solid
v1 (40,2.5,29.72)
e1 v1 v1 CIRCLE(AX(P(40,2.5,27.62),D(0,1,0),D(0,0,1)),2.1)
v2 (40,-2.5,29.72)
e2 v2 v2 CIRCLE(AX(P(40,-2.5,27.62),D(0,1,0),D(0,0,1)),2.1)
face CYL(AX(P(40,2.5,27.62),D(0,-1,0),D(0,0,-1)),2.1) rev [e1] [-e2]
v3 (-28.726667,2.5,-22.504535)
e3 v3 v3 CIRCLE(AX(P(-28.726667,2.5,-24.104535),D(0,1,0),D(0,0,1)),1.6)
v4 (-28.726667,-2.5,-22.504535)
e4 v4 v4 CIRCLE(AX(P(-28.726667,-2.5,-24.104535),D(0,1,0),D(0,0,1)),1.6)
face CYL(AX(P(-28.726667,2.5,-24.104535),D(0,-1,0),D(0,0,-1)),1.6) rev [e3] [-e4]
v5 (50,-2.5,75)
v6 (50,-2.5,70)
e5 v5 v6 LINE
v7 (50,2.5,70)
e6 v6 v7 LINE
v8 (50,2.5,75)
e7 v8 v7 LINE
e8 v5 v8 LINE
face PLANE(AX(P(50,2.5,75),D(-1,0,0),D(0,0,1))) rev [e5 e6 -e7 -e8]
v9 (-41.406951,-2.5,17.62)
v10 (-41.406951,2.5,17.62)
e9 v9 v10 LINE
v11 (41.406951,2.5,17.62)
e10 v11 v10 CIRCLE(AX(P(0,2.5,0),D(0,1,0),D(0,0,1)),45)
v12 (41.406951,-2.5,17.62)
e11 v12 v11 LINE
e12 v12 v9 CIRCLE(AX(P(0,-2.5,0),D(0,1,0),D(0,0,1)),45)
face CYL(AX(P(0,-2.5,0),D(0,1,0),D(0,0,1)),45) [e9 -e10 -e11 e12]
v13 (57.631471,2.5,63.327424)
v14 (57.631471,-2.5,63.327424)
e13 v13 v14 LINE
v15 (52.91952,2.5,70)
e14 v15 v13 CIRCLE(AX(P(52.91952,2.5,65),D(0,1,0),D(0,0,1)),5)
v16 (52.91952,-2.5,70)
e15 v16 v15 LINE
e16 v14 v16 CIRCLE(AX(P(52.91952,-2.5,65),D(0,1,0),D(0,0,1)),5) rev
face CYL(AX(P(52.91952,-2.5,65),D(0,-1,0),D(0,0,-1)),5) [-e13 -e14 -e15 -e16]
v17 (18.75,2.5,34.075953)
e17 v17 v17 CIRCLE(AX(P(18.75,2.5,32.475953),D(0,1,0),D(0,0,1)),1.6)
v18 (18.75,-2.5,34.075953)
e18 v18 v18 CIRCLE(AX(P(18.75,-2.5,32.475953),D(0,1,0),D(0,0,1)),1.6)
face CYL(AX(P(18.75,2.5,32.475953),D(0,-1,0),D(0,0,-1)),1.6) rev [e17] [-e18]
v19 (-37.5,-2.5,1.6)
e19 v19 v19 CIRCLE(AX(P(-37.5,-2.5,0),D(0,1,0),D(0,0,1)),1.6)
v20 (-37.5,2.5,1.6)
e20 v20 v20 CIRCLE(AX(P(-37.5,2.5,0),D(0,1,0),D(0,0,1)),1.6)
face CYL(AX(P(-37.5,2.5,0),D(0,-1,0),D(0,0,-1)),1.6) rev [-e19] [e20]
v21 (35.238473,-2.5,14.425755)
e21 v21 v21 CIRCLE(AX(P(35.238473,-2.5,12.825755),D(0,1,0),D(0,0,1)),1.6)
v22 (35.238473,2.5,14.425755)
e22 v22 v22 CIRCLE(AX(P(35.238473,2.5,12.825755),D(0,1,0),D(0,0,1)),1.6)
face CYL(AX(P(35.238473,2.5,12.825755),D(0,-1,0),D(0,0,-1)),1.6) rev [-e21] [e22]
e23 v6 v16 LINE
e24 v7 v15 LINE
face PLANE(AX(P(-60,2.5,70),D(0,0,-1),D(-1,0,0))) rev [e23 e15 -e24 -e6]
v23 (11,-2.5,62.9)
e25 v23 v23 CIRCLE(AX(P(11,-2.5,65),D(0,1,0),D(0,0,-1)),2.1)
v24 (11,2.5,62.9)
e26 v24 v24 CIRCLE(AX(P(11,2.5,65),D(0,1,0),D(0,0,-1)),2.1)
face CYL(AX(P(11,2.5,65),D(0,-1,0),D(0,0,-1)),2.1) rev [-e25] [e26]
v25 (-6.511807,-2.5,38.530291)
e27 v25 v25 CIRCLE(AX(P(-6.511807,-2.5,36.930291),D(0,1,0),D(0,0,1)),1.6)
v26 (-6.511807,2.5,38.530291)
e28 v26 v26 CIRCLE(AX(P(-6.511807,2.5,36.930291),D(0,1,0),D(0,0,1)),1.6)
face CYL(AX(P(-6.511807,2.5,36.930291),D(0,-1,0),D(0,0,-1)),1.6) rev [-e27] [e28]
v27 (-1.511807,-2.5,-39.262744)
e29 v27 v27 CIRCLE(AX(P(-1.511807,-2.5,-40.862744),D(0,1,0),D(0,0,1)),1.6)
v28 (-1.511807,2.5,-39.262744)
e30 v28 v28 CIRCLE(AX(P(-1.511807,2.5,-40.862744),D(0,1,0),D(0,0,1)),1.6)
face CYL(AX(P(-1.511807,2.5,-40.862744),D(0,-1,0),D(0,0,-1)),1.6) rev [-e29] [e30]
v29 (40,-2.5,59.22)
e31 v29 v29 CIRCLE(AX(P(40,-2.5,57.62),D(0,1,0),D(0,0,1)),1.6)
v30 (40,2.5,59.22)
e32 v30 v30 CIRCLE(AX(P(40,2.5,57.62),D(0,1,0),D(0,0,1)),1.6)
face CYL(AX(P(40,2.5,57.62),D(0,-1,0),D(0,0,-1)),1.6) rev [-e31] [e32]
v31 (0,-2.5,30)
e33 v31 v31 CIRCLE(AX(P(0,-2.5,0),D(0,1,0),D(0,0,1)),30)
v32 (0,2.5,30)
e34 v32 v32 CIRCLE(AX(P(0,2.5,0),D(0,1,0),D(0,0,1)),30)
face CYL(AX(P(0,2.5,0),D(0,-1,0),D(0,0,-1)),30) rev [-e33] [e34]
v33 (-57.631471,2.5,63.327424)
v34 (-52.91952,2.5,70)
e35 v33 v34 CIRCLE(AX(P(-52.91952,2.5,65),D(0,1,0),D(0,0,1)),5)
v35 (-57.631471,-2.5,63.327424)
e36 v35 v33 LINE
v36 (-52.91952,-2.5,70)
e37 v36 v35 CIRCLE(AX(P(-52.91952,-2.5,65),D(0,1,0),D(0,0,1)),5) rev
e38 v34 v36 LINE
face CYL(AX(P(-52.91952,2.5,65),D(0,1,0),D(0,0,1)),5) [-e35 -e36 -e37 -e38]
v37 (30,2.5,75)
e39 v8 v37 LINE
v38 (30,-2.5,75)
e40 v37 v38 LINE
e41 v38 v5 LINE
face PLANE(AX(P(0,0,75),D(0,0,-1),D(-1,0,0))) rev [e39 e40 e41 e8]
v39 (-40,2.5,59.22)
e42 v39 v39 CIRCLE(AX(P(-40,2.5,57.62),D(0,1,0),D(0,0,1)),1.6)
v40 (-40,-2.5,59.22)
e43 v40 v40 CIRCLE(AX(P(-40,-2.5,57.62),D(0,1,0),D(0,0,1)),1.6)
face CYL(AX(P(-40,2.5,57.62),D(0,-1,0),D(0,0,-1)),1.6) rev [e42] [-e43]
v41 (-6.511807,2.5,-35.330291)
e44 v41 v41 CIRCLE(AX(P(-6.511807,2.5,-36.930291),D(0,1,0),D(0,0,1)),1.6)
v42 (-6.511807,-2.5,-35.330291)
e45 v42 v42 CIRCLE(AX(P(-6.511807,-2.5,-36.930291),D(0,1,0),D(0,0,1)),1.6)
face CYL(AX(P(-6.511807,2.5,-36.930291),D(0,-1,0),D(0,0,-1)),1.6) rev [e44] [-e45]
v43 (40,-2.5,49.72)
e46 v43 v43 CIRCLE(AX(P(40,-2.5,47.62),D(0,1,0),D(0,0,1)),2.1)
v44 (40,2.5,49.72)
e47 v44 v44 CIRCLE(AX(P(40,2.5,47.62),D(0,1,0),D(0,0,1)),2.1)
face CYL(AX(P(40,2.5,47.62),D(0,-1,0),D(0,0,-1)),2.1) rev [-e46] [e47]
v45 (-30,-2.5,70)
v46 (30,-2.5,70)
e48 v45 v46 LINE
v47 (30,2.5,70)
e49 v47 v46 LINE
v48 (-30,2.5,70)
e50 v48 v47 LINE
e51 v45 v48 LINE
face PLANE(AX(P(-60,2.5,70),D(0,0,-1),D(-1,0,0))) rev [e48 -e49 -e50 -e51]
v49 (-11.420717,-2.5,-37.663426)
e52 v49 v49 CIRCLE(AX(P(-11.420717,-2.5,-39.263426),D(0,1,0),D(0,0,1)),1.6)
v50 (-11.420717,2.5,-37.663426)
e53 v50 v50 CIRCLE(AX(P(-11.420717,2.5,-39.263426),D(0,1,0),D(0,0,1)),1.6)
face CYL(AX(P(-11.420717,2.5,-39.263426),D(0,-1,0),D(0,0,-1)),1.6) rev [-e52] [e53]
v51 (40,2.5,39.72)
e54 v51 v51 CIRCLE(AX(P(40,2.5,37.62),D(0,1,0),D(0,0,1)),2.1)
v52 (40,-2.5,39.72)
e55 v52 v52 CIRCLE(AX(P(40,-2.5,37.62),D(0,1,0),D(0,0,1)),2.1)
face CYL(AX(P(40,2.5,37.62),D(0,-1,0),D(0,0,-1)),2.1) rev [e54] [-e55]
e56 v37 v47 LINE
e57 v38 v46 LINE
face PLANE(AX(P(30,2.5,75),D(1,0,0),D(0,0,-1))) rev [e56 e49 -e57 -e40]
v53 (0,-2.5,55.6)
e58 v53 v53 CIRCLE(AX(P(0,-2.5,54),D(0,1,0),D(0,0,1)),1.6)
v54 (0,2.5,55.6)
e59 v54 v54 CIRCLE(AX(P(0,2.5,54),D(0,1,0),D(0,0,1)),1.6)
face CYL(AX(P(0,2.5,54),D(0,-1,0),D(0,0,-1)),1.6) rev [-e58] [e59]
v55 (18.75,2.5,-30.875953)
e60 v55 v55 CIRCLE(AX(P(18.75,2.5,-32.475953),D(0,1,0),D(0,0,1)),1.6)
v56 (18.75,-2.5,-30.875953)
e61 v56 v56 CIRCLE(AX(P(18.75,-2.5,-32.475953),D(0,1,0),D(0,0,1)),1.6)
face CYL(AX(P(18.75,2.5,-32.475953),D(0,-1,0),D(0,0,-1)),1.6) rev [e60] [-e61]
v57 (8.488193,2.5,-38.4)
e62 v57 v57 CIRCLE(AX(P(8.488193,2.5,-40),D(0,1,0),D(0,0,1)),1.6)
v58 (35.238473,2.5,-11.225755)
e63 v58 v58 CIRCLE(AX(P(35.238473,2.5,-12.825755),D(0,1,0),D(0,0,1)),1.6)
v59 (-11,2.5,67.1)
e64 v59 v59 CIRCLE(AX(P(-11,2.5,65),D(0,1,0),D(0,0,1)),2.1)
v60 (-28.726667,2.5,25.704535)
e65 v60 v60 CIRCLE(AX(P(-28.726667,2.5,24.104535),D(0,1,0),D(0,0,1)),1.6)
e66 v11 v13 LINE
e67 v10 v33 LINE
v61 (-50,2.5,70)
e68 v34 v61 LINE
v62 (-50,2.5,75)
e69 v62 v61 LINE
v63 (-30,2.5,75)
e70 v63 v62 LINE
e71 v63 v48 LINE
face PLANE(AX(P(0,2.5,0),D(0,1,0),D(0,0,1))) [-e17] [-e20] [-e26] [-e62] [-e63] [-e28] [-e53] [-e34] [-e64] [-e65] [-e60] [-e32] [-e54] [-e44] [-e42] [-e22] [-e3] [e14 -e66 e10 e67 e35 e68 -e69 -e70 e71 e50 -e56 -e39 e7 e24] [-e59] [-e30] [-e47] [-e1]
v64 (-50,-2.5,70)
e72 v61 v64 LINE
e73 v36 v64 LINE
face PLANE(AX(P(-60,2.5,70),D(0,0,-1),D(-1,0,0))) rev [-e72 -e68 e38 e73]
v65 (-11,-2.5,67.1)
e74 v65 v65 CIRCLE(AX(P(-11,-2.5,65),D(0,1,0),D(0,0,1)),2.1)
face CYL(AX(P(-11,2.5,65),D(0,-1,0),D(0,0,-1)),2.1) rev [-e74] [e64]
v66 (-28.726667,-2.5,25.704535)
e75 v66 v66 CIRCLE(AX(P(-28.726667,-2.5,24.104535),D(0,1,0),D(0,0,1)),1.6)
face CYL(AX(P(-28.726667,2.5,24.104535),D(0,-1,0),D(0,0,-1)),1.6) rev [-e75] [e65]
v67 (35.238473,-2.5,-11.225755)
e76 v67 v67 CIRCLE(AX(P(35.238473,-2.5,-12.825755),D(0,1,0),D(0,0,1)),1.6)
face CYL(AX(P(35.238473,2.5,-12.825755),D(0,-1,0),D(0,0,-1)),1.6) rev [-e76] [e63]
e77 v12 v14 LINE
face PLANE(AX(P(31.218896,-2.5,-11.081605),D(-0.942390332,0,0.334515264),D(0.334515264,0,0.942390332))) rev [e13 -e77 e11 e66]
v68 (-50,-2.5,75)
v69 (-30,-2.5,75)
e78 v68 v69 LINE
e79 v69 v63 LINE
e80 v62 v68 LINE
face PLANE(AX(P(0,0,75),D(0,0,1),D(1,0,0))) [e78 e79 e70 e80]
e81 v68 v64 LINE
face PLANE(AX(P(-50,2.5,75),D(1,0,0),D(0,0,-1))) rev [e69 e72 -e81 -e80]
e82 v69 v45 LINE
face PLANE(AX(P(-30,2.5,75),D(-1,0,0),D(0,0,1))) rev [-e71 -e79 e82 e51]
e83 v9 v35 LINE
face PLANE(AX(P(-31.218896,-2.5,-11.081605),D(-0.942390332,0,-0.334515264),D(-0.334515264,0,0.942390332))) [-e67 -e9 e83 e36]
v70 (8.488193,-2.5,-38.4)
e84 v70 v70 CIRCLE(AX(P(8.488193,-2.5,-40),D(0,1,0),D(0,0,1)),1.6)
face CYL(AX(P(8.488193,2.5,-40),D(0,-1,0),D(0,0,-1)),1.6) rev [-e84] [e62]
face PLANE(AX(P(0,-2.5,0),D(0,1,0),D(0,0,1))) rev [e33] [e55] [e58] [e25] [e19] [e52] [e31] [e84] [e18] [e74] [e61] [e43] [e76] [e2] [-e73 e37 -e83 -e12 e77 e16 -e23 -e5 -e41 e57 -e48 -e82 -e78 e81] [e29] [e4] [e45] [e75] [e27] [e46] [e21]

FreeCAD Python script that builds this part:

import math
import FreeCAD as App
import Part
import Sketcher


def edges_at(feature, points):
    """Names of the edges that pass closest to the given points."""
    edges = feature.Shape.Edges
    near = lambda p: min(range(len(edges)), key=lambda i: edges[i].distToShape(Part.Vertex(*p))[0])
    return sorted({f"Edge{near(p) + 1}" for p in points})


def add_polygon(sketch, points):
    """Adds a closed chain of lines whose ends are joined by coincident constraints."""
    first, n = sketch.GeometryCount, len(points)
    for a, b in zip(points, points[1:] + points[:1]):
        sketch.addGeometry(Part.LineSegment(App.Vector(*a, 0), App.Vector(*b, 0)), False)
    for i in range(n):
        sketch.addConstraint(Sketcher.Constraint("Coincident", first + i, 2, first + (i + 1) % n, 1))

doc = App.newDocument("Part")
params = doc.addObject("Spreadsheet::Sheet", "Params")
for row, (alias, value) in enumerate([
    ("sketch1_diameter", "60 mm"),
    ("sketch1_radius", "60 mm"),
    ("sketch1_diameter2", "3.2 mm"),
    ("sketch1_diameter3", "4.2 mm"),
    ("sketch1_height", "70 mm"),
    ("pad1_length", "5 mm"),
    ("sketch2_width", "20 mm"),
    ("sketch2_height", "5 mm"),
    ("pad2_length", "5 mm"),
    ("sketch3_radius", "45 mm"),
    ("sketch3_radius2", "60 mm"),
    ("sketch3_height", "70 mm"),
    ("fillet_radius", "5 mm"),
], start=1):
    params.set(f"A{row}", alias)
    params.set(f"B{row}", "=" + value)
    params.setAlias(f"B{row}", alias)

body = doc.addObject("PartDesign::Body", "Body")

sketch1 = body.newObject("Sketcher::SketchObject", "Sketch")
sketch1.AttachmentSupport = (doc.getObject("XZ_Plane"), [""])
sketch1.MapMode = "FlatFace"
sketch1.addGeometry([
    Part.LineSegment(App.Vector(-60, 0, 0), App.Vector(-60, 70, 0)),
    Part.LineSegment(App.Vector(-60, 70, 0), App.Vector(60, 70, 0)),
    Part.LineSegment(App.Vector(60, 70, 0), App.Vector(60, 0, 0)),
    Part.ArcOfCircle(Part.Circle(App.Vector(0, 0, 0), App.Vector(0, 0, 1), 60), math.radians(-90), math.radians(0)),
    Part.ArcOfCircle(Part.Circle(App.Vector(0, 0, 0), App.Vector(0, 0, 1), 60), math.radians(-180), math.radians(-90)),
    Part.Circle(App.Vector(-40, 57.6, 0), App.Vector(0, 0, 1), 1.6),
    Part.Circle(App.Vector(-11, 65, 0), App.Vector(0, 0, 1), 2.1),
    Part.Circle(App.Vector(0, 54, 0), App.Vector(0, 0, 1), 1.6),
    Part.Circle(App.Vector(-28.7, 24.1, 0), App.Vector(0, 0, 1), 1.6),
    Part.Circle(App.Vector(-6.5, 36.9, 0), App.Vector(0, 0, 1), 1.6),
    Part.Circle(App.Vector(11, 65, 0), App.Vector(0, 0, 1), 2.1),
    Part.Circle(App.Vector(40, 57.6, 0), App.Vector(0, 0, 1), 1.6),
    Part.Circle(App.Vector(40, 47.6, 0), App.Vector(0, 0, 1), 2.1),
    Part.Circle(App.Vector(18.8, 32.5, 0), App.Vector(0, 0, 1), 1.6),
    Part.Circle(App.Vector(40, 37.6, 0), App.Vector(0, 0, 1), 2.1),
    Part.Circle(App.Vector(40, 27.6, 0), App.Vector(0, 0, 1), 2.1),
    Part.Circle(App.Vector(35.2, 12.8, 0), App.Vector(0, 0, 1), 1.6),
    Part.Circle(App.Vector(-37.5, 0, 0), App.Vector(0, 0, 1), 1.6),
    Part.Circle(App.Vector(0, 0, 0), App.Vector(0, 0, 1), 30),
    Part.Circle(App.Vector(-28.7, -24.1, 0), App.Vector(0, 0, 1), 1.6),
    Part.Circle(App.Vector(-11.4, -39.3, 0), App.Vector(0, 0, 1), 1.6),
    Part.Circle(App.Vector(-6.5, -36.9, 0), App.Vector(0, 0, 1), 1.6),
    Part.Circle(App.Vector(-1.5, -40.9, 0), App.Vector(0, 0, 1), 1.6),
    Part.Circle(App.Vector(35.2, -12.8, 0), App.Vector(0, 0, 1), 1.6),
    Part.Circle(App.Vector(8.5, -40, 0), App.Vector(0, 0, 1), 1.6),
    Part.Circle(App.Vector(18.8, -32.5, 0), App.Vector(0, 0, 1), 1.6),
], False)
sketch1.addConstraint([
    Sketcher.Constraint("Coincident", 0, 2, 1, 1),
    Sketcher.Constraint("Coincident", 1, 2, 2, 1),
    Sketcher.Constraint("Tangent", 2, 2, 3, 2),
    Sketcher.Constraint("Tangent", 3, 1, 4, 2),
    Sketcher.Constraint("Tangent", 4, 1, 0, 1),
    Sketcher.Constraint("Vertical", 0),
    Sketcher.Constraint("Horizontal", 1),
    Sketcher.Constraint("Vertical", 2),
    Sketcher.Constraint("Coincident", 3, 3, -1, 1),
    Sketcher.Constraint("Coincident", 18, 3, -1, 1),
    Sketcher.Constraint("Equal", 3, 4),
    Sketcher.Constraint("Equal", 5, 7),
    Sketcher.Constraint("Equal", 7, 8),
    Sketcher.Constraint("Equal", 8, 9),
    Sketcher.Constraint("Equal", 6, 10),
    Sketcher.Constraint("Equal", 9, 11),
    Sketcher.Constraint("Equal", 10, 12),
    Sketcher.Constraint("Equal", 11, 13),
    Sketcher.Constraint("Equal", 12, 14),
    Sketcher.Constraint("Equal", 14, 15),
    Sketcher.Constraint("Equal", 13, 16),
    Sketcher.Constraint("Equal", 16, 17),
    Sketcher.Constraint("Equal", 17, 19),
    Sketcher.Constraint("Equal", 19, 20),
    Sketcher.Constraint("Equal", 20, 21),
    Sketcher.Constraint("Equal", 21, 22),
    Sketcher.Constraint("Equal", 22, 23),
    Sketcher.Constraint("Equal", 23, 24),
    Sketcher.Constraint("Equal", 24, 25),
    Sketcher.Constraint("Symmetric", 6, 3, 10, 3, -2),
    Sketcher.Constraint("Symmetric", 5, 3, 11, 3, -2),
    Sketcher.Constraint("Symmetric", 8, 3, 19, 3, -1),
    Sketcher.Constraint("Symmetric", 9, 3, 21, 3, -1),
    Sketcher.Constraint("Symmetric", 16, 3, 23, 3, -1),
    Sketcher.Constraint("Symmetric", 13, 3, 25, 3, -1),
    Sketcher.Constraint("PointOnObject", 7, 3, -2),
    Sketcher.Constraint("PointOnObject", 17, 3, -1),
    Sketcher.Constraint("PointOnObject", 3, 1, -2),
    Sketcher.Constraint("Vertical", 11, 3, 12, 3),
    Sketcher.Constraint("Vertical", 12, 3, 14, 3),
    Sketcher.Constraint("Vertical", 14, 3, 15, 3),
    Sketcher.Constraint("Diameter", 18, 60.0),
    Sketcher.Constraint("Radius", 3, 60.0),
    Sketcher.Constraint("Diameter", 5, 3.2),
    Sketcher.Constraint("Diameter", 6, 4.2),
    Sketcher.Constraint("DistanceY", 0, 1, 0, 2, 70.0),
    Sketcher.Constraint("DistanceX", 5, 3, -1, 1, 40.0),
    Sketcher.Constraint("DistanceX", 6, 3, -1, 1, 11.0),
    Sketcher.Constraint("DistanceY", -1, 1, 6, 3, 65.0),
    Sketcher.Constraint("DistanceY", -1, 1, 7, 3, 54.0),
    Sketcher.Constraint("DistanceY", 24, 3, -1, 1, 40.0),
    Sketcher.Constraint("DistanceY", 12, 3, 11, 3, 10.0),
    Sketcher.Constraint("DistanceY", 14, 3, 12, 3, 10.0),
    Sketcher.Constraint("DistanceY", 15, 3, 14, 3, 10.0),
    Sketcher.Constraint("DistanceX", 21, 3, 22, 3, 5.0),
    Sketcher.Constraint("DistanceX", 22, 3, 24, 3, 10.0),
    Sketcher.Constraint("DistanceX", 17, 3, -1, 1, 37.5),
    Sketcher.Constraint("DistanceY", -1, 1, 5, 3, 57.62),
    Sketcher.Constraint("DistanceX", -1, 1, 13, 3, 18.75),
    Sketcher.Constraint("DistanceY", -1, 1, 9, 3, 36.930291),
    Sketcher.Constraint("DistanceX", 8, 3, 9, 3, 22.21486),
    Sketcher.Constraint("DistanceY", 13, 3, 9, 3, 4.454338),
    Sketcher.Constraint("DistanceY", 19, 3, 8, 3, 48.209071),
    Sketcher.Constraint("DistanceX", 19, 3, 20, 3, 17.305949),
    Sketcher.Constraint("DistanceY", 20, 3, 19, 3, 15.158891),
    Sketcher.Constraint("DistanceY", 22, 3, 19, 3, 16.758209),
    Sketcher.Constraint("DistanceY", 23, 3, 16, 3, 25.651511),
    Sketcher.Constraint("DistanceX", 24, 3, 23, 3, 26.75028),
    Sketcher.Constraint("DistanceX", 8, 3, -1, 1, 28.726667),
])
sketch1.setExpression("Constraints[41]", "Params.sketch1_diameter")
sketch1.setExpression("Constraints[42]", "Params.sketch1_radius")
sketch1.setExpression("Constraints[43]", "Params.sketch1_diameter2")
sketch1.setExpression("Constraints[44]", "Params.sketch1_diameter3")
sketch1.setExpression("Constraints[45]", "Params.sketch1_height")
pad1 = body.newObject("PartDesign::Pad", "Pad")
pad1.Profile = sketch1
pad1.setExpression("Length", "Params.pad1_length")
pad1.Midplane = True

sketch2 = body.newObject("Sketcher::SketchObject", "Sketch001")
sketch2.AttachmentSupport = (doc.getObject("XY_Plane"), [""])
sketch2.MapMode = "FlatFace"
sketch2.AttachmentOffset = App.Placement(App.Vector(0, 0, 70), App.Rotation())
add_polygon(sketch2, [(30, 2), (30, -2), (50, -2), (50, 2)])
add_polygon(sketch2, [(-50, 2), (-50, -2), (-30, -2), (-30, 2)])
sketch2.addConstraint([
    Sketcher.Constraint("Vertical", 0),
    Sketcher.Constraint("Horizontal", 1),
    Sketcher.Constraint("Vertical", 2),
    Sketcher.Constraint("Horizontal", 3),
    Sketcher.Constraint("Vertical", 4),
    Sketcher.Constraint("Horizontal", 5),
    Sketcher.Constraint("Vertical", 6),
    Sketcher.Constraint("Horizontal", 7),
    Sketcher.Constraint("Symmetric", 2, 2, 4, 2, -1, 1),
    Sketcher.Constraint("Symmetric", 0, 2, 6, 2, -1, 1),
    Sketcher.Constraint("Horizontal", 1, 2, 4, 2),
    Sketcher.Constraint("DistanceX", 1, 1, 1, 2, 20.0),
    Sketcher.Constraint("DistanceY", 0, 2, 0, 1, 5.0),
    Sketcher.Constraint("DistanceX", -1, 1, 0, 2, 30.0),
])
sketch2.setExpression("Constraints[19]", "Params.sketch2_width")
sketch2.setExpression("Constraints[20]", "Params.sketch2_height")
pad2 = body.newObject("PartDesign::Pad", "Pad001")
pad2.Profile = sketch2
pad2.setExpression("Length", "Params.pad2_length")

sketch3 = body.newObject("Sketcher::SketchObject", "Sketch002")
sketch3.AttachmentSupport = (doc.getObject("XZ_Plane"), [""])
sketch3.MapMode = "FlatFace"
sketch3.AttachmentOffset = App.Placement(App.Vector(0, 0, -2.5), App.Rotation())
sketch3.addGeometry([
    Part.ArcOfCircle(Part.Circle(App.Vector(0, 0, 0), App.Vector(0, 0, 1), 45), math.radians(157), math.radians(383)),
    Part.LineSegment(App.Vector(41, 18, 0), App.Vector(60, 70, 0)),
    Part.LineSegment(App.Vector(60, 70, 0), App.Vector(60, 0, 0)),
    Part.ArcOfCircle(Part.Circle(App.Vector(0, 0, 0), App.Vector(0, 0, 1), 60), math.radians(180), math.radians(360)),
    Part.LineSegment(App.Vector(-60, 0, 0), App.Vector(-60, 70, 0)),
    Part.LineSegment(App.Vector(-60, 70, 0), App.Vector(-41, 18, 0)),
], False)
sketch3.addConstraint([
    Sketcher.Constraint("Coincident", 0, 2, 1, 1),
    Sketcher.Constraint("Coincident", 1, 2, 2, 1),
    Sketcher.Constraint("Tangent", 2, 2, 3, 2),
    Sketcher.Constraint("Tangent", 3, 1, 4, 1),
    Sketcher.Constraint("Coincident", 4, 2, 5, 1),
    Sketcher.Constraint("Coincident", 5, 2, 0, 1),
    Sketcher.Constraint("Vertical", 2),
    Sketcher.Constraint("Vertical", 4),
    Sketcher.Constraint("Coincident", 0, 3, -1, 1),
    Sketcher.Constraint("Coincident", 3, 3, -1, 1),
    Sketcher.Constraint("Horizontal", 1, 2, 4, 2),
    Sketcher.Constraint("Horizontal", 0, 2, 5, 2),
    Sketcher.Constraint("Radius", 0, 45.0),
    Sketcher.Constraint("Radius", 3, 60.0),
    Sketcher.Constraint("DistanceY", 2, 2, 2, 1, 70.0),
    Sketcher.Constraint("DistanceY", -1, 1, 0, 2, 17.62),
])
sketch3.setExpression("Constraints[12]", "Params.sketch3_radius")
sketch3.setExpression("Constraints[13]", "Params.sketch3_radius2")
sketch3.setExpression("Constraints[14]", "Params.sketch3_height")
pocket1 = body.newObject("PartDesign::Pocket", "Pocket")
pocket1.Profile = sketch3
pocket1.Type = "ThroughAll"
pocket1.Reversed = True
doc.recompute()

fillet = body.newObject("PartDesign::Fillet", "Fillet")
fillet.Base = (pocket1, edges_at(pocket1, [(60, 0, 70), (-60, 0, 70)]))
fillet.setExpression("Radius", "Params.fillet_radius")

doc.recompute()
